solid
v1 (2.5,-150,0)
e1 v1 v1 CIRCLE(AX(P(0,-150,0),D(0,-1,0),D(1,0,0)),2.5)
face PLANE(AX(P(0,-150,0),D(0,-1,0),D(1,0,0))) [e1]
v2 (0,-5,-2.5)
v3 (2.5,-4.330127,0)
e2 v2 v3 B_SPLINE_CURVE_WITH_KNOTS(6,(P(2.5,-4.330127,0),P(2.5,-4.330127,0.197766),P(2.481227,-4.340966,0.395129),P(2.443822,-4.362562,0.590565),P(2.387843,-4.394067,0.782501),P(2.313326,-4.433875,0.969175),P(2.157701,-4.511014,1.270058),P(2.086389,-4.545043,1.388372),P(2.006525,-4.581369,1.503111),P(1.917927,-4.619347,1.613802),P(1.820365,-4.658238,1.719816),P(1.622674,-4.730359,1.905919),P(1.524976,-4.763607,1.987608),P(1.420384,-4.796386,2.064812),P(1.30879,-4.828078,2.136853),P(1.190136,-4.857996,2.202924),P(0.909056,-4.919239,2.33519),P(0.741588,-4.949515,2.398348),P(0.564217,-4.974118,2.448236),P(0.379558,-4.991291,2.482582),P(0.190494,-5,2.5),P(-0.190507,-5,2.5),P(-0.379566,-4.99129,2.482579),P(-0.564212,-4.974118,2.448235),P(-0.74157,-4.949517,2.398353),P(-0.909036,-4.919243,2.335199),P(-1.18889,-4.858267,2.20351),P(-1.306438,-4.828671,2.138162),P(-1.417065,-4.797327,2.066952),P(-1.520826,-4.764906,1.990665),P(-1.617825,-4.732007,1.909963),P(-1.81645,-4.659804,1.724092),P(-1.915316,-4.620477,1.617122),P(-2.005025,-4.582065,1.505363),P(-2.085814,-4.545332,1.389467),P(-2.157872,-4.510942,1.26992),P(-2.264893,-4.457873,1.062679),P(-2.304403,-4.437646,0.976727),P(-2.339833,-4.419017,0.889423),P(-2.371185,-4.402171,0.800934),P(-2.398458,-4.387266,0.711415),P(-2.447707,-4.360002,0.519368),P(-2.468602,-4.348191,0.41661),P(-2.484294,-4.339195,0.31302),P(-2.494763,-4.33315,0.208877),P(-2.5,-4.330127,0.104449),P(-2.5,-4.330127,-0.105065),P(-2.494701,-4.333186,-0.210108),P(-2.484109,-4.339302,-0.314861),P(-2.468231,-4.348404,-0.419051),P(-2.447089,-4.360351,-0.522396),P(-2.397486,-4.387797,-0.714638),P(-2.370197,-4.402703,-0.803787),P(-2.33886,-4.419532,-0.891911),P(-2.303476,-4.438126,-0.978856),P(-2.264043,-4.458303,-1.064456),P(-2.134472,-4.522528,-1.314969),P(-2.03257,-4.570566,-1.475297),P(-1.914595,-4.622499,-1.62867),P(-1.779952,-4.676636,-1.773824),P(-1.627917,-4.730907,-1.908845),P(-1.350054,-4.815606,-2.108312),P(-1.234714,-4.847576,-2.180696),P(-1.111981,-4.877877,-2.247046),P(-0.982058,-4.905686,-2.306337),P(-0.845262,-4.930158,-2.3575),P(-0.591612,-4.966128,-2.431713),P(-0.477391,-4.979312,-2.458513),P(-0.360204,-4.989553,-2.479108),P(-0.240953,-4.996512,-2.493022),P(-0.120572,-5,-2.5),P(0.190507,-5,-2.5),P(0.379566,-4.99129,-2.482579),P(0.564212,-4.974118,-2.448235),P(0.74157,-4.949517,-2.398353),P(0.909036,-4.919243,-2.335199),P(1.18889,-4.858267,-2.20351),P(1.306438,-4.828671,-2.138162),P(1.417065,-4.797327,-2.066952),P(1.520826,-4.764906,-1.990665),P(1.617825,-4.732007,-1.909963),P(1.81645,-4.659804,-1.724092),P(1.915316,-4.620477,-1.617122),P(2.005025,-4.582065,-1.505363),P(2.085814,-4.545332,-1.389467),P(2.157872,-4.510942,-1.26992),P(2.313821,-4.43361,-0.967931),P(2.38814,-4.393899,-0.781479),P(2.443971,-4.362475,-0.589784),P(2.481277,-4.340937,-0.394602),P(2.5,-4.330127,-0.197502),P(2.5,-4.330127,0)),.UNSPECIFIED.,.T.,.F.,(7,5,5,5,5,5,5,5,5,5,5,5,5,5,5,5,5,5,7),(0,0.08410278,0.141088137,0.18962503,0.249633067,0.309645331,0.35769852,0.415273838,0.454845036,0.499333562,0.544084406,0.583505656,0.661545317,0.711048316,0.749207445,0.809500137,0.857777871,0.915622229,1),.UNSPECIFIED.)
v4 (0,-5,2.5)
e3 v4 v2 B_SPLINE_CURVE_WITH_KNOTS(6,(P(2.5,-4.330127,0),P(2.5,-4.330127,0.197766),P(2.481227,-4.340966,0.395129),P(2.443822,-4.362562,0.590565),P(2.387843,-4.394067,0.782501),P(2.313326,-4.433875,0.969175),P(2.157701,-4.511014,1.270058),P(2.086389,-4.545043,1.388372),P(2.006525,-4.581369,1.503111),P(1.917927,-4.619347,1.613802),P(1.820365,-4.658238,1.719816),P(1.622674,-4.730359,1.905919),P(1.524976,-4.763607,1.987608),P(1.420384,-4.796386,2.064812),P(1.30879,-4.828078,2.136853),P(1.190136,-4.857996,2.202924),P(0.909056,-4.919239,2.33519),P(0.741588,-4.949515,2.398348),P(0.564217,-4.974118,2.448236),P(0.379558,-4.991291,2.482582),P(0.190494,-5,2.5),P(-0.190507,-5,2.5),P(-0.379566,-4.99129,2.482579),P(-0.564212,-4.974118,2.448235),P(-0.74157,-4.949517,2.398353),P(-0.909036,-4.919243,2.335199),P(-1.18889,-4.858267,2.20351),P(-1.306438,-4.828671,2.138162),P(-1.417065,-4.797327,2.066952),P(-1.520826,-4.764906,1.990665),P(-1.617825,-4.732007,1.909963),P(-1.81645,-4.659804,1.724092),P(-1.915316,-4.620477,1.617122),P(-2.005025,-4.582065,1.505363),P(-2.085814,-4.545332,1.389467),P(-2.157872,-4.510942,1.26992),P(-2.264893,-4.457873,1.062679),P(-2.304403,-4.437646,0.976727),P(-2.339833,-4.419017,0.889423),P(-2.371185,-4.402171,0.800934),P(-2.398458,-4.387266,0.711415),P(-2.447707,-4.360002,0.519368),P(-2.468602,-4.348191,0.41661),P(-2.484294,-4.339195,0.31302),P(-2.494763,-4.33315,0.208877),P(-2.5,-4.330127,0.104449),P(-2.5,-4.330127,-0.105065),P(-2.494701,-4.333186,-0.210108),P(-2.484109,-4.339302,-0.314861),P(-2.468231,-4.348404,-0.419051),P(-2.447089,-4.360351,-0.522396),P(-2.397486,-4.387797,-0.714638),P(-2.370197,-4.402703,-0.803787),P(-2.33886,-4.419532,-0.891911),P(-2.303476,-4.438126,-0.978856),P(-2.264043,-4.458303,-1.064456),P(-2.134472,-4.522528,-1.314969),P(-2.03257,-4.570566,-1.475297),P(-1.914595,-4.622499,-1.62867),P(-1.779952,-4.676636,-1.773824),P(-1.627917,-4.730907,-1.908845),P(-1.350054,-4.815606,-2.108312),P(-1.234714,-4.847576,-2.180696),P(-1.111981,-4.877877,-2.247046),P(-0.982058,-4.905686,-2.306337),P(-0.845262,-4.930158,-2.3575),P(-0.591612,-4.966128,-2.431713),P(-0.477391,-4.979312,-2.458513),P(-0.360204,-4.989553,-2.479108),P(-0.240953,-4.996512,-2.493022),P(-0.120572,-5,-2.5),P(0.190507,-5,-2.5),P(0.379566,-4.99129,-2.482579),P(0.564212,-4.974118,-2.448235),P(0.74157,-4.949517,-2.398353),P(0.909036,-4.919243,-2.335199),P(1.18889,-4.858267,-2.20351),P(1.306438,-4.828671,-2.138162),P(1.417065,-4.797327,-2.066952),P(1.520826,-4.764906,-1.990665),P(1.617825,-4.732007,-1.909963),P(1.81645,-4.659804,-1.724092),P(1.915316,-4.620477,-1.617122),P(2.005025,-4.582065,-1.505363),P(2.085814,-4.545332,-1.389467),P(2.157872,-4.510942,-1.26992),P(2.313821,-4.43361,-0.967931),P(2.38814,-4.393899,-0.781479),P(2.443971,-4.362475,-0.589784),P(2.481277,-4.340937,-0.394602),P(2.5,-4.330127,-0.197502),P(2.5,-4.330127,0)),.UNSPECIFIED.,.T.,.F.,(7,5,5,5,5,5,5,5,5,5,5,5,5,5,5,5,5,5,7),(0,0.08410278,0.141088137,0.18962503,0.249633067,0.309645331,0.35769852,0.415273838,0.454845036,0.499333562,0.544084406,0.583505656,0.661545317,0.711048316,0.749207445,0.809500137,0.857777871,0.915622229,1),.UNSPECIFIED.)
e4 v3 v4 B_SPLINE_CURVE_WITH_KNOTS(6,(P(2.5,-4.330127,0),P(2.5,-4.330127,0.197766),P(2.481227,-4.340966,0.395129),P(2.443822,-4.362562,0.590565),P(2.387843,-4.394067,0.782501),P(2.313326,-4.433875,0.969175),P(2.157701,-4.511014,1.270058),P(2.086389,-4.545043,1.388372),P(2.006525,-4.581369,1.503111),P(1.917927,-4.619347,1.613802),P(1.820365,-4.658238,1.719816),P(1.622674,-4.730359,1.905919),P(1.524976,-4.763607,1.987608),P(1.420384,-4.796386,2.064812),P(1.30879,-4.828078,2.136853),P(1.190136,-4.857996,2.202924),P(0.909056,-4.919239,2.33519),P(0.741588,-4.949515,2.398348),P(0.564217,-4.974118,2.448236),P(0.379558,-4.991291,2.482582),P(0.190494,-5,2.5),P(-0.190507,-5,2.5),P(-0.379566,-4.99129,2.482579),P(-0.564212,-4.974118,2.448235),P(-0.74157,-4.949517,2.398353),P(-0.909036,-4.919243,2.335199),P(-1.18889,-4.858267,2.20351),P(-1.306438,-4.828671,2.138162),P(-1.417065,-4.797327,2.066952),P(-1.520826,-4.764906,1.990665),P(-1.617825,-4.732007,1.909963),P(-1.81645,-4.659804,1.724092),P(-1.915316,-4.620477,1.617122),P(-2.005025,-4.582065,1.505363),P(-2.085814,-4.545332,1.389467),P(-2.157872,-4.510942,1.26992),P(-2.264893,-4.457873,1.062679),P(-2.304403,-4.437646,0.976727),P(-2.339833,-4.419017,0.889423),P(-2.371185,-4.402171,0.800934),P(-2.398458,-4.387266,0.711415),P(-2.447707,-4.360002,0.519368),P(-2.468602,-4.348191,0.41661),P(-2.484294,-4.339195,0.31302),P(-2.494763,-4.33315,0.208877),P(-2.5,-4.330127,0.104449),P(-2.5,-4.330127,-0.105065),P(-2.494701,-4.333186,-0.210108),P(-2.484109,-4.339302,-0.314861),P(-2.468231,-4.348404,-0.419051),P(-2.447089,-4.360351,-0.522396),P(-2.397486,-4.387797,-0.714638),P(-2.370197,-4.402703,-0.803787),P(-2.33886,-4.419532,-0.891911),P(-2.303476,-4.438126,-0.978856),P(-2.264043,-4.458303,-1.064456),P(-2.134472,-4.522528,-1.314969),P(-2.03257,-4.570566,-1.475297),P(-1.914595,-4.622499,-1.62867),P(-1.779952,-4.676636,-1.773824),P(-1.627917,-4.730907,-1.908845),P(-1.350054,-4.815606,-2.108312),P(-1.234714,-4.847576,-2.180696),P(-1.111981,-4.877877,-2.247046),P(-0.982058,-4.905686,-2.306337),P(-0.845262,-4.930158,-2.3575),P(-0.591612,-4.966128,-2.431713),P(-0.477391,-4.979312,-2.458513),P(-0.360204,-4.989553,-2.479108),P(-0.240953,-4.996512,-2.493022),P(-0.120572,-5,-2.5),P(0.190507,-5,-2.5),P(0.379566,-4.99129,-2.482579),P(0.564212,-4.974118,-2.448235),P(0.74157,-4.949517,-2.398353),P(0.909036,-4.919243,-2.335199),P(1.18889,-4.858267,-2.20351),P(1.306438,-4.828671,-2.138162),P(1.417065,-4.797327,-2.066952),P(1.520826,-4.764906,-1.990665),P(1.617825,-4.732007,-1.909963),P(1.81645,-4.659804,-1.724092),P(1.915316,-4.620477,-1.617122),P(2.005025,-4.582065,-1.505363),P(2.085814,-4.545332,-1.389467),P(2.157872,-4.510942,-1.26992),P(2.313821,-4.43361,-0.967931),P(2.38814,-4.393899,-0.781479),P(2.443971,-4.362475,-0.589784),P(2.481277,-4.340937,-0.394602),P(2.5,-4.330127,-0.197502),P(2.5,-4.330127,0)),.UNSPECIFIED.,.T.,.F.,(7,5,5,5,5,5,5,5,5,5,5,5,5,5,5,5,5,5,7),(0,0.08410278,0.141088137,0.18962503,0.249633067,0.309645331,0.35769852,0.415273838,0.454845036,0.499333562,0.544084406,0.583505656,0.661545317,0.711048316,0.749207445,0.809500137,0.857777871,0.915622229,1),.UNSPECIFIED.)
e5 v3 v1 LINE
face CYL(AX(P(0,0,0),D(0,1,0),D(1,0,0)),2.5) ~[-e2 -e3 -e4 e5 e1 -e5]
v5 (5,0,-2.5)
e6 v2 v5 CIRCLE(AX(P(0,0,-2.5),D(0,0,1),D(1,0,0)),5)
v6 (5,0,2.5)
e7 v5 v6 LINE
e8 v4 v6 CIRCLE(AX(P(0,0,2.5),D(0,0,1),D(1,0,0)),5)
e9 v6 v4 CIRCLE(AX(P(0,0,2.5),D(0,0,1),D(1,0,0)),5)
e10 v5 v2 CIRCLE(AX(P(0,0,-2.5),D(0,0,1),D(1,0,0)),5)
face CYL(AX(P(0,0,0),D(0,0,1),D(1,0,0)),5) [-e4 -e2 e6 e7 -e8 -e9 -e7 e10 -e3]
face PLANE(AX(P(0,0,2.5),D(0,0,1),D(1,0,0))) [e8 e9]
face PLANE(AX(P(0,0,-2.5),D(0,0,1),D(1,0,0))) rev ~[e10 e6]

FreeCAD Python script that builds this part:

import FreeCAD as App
import Part
import Sketcher

doc = App.newDocument("Part")
body = doc.addObject("PartDesign::Body", "Body")

# Sketch on XZ plane
sketch1 = body.newObject("Sketcher::SketchObject", "Sketch")
sketch1.AttachmentSupport = (doc.getObject("XZ_Plane"), [""])
sketch1.MapMode = "FlatFace"
sketch1.addGeometry(Part.Circle(App.Vector(0, 0, 0), App.Vector(0, 0, 1), 2.5), False)
sketch1.addConstraint([
    Sketcher.Constraint("Coincident", 0, 3, -1, 1),
    Sketcher.Constraint("Diameter", 0, 5.0),
])
pad1 = body.newObject("PartDesign::Pad", "Pad")
pad1.Profile = sketch1
pad1.Length = 150

# Sketch on XY plane
sketch2 = body.newObject("Sketcher::SketchObject", "Sketch001")
sketch2.AttachmentSupport = (doc.getObject("XY_Plane"), [""])
sketch2.MapMode = "FlatFace"
sketch2.addGeometry(Part.Circle(App.Vector(0, 0, 0), App.Vector(0, 0, 1), 5), False)
sketch2.addConstraint([
    Sketcher.Constraint("Coincident", 0, 3, -1, 1),
    Sketcher.Constraint("Diameter", 0, 10.0),
])
pad2 = body.newObject("PartDesign::Pad", "Pad001")
pad2.Profile = sketch2
pad2.Length = 5
pad2.Midplane = True

doc.recompute()
